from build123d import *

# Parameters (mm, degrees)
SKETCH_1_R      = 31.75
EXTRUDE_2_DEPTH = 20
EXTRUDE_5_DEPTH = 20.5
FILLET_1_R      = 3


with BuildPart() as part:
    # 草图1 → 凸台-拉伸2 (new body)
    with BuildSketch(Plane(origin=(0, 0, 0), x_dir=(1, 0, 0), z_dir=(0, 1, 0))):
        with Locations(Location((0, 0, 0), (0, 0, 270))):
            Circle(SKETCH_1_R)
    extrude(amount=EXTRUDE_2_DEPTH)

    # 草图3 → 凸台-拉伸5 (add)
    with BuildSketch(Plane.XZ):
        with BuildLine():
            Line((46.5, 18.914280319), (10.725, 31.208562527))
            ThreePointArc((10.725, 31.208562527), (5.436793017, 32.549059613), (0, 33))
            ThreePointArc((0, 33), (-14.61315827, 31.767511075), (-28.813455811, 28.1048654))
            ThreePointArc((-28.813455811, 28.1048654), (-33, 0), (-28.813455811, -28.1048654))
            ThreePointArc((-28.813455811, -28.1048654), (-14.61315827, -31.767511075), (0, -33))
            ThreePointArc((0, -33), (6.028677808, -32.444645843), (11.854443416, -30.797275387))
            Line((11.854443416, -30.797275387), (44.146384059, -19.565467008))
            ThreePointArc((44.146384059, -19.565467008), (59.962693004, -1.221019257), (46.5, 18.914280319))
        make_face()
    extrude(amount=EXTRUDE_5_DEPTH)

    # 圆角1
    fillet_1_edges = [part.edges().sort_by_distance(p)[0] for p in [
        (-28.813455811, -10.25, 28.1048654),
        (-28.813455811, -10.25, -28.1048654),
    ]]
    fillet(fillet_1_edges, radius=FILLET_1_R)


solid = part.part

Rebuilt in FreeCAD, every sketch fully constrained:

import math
import FreeCAD as App
import Part
import Sketcher
Q = App.Units.Quantity


def edges_at(feature, points):
    """Names of the edges that pass closest to the given points."""
    edges = feature.Shape.Edges
    near = lambda p: min(range(len(edges)), key=lambda i: edges[i].distToShape(Part.Vertex(*p))[0])
    return sorted({f"Edge{near(p) + 1}" for p in points})

doc = App.newDocument("Part")
params = doc.addObject("Spreadsheet::Sheet", "Params")
for row, (alias, value) in enumerate([
    ("sketch1_diameter", "63.5 mm"),
    ("pad1_length", "20 mm"),
    ("sketch2_radius", "33 mm"),
    ("sketch2_radius2", "20 mm"),
    ("pad2_length", "20.5 mm"),
    ("fillet_radius", "3 mm"),
], start=1):
    params.set(f"A{row}", alias)
    params.set(f"B{row}", "=" + value)
    params.setAlias(f"B{row}", alias)

body = doc.addObject("PartDesign::Body", "Body")

# Sketch on XZ plane
sketch1 = body.newObject("Sketcher::SketchObject", "Sketch")
sketch1.AttachmentSupport = (doc.getObject("XZ_Plane"), [""])
sketch1.MapMode = "FlatFace"
sketch1.addGeometry(Part.Circle(App.Vector(0, 0, 0), App.Vector(0, 0, 1), 32), False)
sketch1.addConstraint([
    Sketcher.Constraint("Coincident", 0, 3, -1, 1),
    Sketcher.Constraint("Diameter", 0, Q("63.5 mm")),
])
sketch1.setExpression("Constraints[1]", "Params.sketch1_diameter")
pad1 = body.newObject("PartDesign::Pad", "Pad")
pad1.Profile = sketch1
pad1.setExpression("Length", "Params.pad1_length")
pad1.Reversed = True

# Sketch on XZ plane
sketch2 = body.newObject("Sketcher::SketchObject", "Sketch001")
sketch2.AttachmentSupport = (doc.getObject("XZ_Plane"), [""])
sketch2.MapMode = "FlatFace"
sketch2.addGeometry([
    Part.LineSegment(App.Vector(46, 19, 0), App.Vector(11, 31, 0)),  # 0
    Part.ArcOfCircle(Part.Circle(App.Vector(0, 0, 0), App.Vector(0, 0, 1), 33), math.radians(71.03), math.radians(90)),  # 1
    Part.ArcOfCircle(Part.Circle(App.Vector(0, -54, 0), App.Vector(0, 0, 1), 87), math.radians(90), math.radians(109.28)),  # 2
    Part.ArcOfCircle(Part.Circle(App.Vector(63, 0, 0), App.Vector(0, 0, 1), 96), math.radians(163), math.radians(197)),  # 3
    Part.ArcOfCircle(Part.Circle(App.Vector(0, 54, 0), App.Vector(0, 0, 1), 87), math.radians(-109.28), math.radians(-90)),  # 4
    Part.ArcOfCircle(Part.Circle(App.Vector(0, 0, 0), App.Vector(0, 0, 1), 33), math.radians(-90), math.radians(-69)),  # 5
    Part.LineSegment(App.Vector(12, -31, 0), App.Vector(44, -20, 0)),  # 6
    Part.ArcOfCircle(Part.Circle(App.Vector(40, 0, 0), App.Vector(0, 0, 1), 20), math.radians(-78), math.radians(71)),  # 7
], False)
sketch2.addConstraint([
    Sketcher.Constraint("Tangent", 0, 2, 1, 1),
    Sketcher.Constraint("Tangent", 1, 2, 2, 1),
    Sketcher.Constraint("Coincident", 2, 2, 3, 1),
    Sketcher.Constraint("Coincident", 3, 2, 4, 1),
    Sketcher.Constraint("Tangent", 4, 2, 5, 1),
    Sketcher.Constraint("Coincident", 5, 2, 6, 1),
    Sketcher.Constraint("Coincident", 6, 2, 7, 1),
    Sketcher.Constraint("Tangent", 7, 2, 0, 1),
    Sketcher.Constraint("Coincident", 1, 3, -1, 1),
    Sketcher.Constraint("Coincident", 5, 3, -1, 1),
    Sketcher.Constraint("Equal", 2, 4),
    Sketcher.Constraint("Equal", 1, 5),
    Sketcher.Constraint("Symmetric", 2, 2, 3, 2, -1),
    Sketcher.Constraint("PointOnObject", 2, 3, -2),
    Sketcher.Constraint("PointOnObject", 7, 3, -1),
    Sketcher.Constraint("Radius", 1, Q("33 mm")),
    Sketcher.Constraint("Radius", 7, Q("20 mm")),
    Sketcher.Constraint("DistanceX", -1, 1, 7, 3, Q("40 mm")),
    Sketcher.Constraint("Radius", 2, Q("87.247609 mm")),
    Sketcher.Constraint("Radius", 3, Q("96.429247 mm")),
    Sketcher.Constraint("DistanceX", 3, 2, 5, 2, Q("40.667899 mm")),
    Sketcher.Constraint("DistanceY", 3, 2, 2, 2, Q("56.209731 mm")),
    Sketcher.Constraint("DistanceX", 5, 2, 6, 2, Q("32.291941 mm")),
])
sketch2.setExpression("Constraints[15]", "Params.sketch2_radius")
sketch2.setExpression("Constraints[16]", "Params.sketch2_radius2")
pad2 = body.newObject("PartDesign::Pad", "Pad001")
pad2.Profile = sketch2
pad2.setExpression("Length", "Params.pad2_length")
doc.recompute()

fillet = body.newObject("PartDesign::Fillet", "Fillet")
fillet.Base = (pad2, edges_at(pad2, [(-28.813, -10.25, 28.105), (-28.813, -10.25, -28.105)]))
fillet.setExpression("Radius", "Params.fillet_radius")

doc.recompute()
